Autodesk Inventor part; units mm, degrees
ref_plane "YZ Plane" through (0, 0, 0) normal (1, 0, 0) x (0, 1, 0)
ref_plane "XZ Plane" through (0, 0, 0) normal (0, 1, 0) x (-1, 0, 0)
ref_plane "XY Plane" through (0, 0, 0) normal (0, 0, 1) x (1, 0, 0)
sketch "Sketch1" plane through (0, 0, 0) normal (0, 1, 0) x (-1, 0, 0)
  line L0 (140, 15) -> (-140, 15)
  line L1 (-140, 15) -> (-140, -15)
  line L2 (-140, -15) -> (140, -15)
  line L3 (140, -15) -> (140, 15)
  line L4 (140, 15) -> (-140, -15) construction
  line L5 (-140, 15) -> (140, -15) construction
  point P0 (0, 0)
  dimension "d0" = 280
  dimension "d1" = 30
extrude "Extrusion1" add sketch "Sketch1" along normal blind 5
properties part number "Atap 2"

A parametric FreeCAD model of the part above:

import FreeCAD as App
import Part
import Sketcher
Q = App.Units.Quantity

doc = App.newDocument("Part")
body = doc.addObject("PartDesign::Body", "Body")

sketch1 = doc.addObject("Sketcher::SketchObject", "Sketch")
body.addObject(sketch1)
sketch1.AttachmentSupport = (doc.XZ_Plane, [""])
sketch1.MapMode = "FlatFace"
sketch1.addGeometry([
    Part.LineSegment(App.Vector(-140, -15, 0), App.Vector(-140, 15, 0)),
    Part.LineSegment(App.Vector(-140, 15, 0), App.Vector(140, 15, 0)),
    Part.LineSegment(App.Vector(140, 15, 0), App.Vector(140, -15, 0)),
    Part.LineSegment(App.Vector(140, -15, 0), App.Vector(-140, -15, 0)),
], False)
sketch1.addConstraint([
    Sketcher.Constraint("Coincident", 0, 2, 1, 1),
    Sketcher.Constraint("Coincident", 1, 2, 2, 1),
    Sketcher.Constraint("Coincident", 2, 2, 3, 1),
    Sketcher.Constraint("Coincident", 3, 2, 0, 1),
    Sketcher.Constraint("Vertical", 0),
    Sketcher.Constraint("Horizontal", 1),
    Sketcher.Constraint("Vertical", 2),
    Sketcher.Constraint("Horizontal", 3),
    Sketcher.Constraint("Symmetric", 0, 2, 2, 2, -1, 1),
    Sketcher.Constraint("DistanceX", 1, 1, 1, 2, Q("280 mm")),
    Sketcher.Constraint("DistanceY", 0, 1, 0, 2, Q("30 mm")),
])
pad1 = doc.addObject("PartDesign::Pad", "Pad")
body.addObject(pad1)
pad1.Profile = sketch1
pad1.Length = 5
pad1.Reversed = True

doc.recompute()
